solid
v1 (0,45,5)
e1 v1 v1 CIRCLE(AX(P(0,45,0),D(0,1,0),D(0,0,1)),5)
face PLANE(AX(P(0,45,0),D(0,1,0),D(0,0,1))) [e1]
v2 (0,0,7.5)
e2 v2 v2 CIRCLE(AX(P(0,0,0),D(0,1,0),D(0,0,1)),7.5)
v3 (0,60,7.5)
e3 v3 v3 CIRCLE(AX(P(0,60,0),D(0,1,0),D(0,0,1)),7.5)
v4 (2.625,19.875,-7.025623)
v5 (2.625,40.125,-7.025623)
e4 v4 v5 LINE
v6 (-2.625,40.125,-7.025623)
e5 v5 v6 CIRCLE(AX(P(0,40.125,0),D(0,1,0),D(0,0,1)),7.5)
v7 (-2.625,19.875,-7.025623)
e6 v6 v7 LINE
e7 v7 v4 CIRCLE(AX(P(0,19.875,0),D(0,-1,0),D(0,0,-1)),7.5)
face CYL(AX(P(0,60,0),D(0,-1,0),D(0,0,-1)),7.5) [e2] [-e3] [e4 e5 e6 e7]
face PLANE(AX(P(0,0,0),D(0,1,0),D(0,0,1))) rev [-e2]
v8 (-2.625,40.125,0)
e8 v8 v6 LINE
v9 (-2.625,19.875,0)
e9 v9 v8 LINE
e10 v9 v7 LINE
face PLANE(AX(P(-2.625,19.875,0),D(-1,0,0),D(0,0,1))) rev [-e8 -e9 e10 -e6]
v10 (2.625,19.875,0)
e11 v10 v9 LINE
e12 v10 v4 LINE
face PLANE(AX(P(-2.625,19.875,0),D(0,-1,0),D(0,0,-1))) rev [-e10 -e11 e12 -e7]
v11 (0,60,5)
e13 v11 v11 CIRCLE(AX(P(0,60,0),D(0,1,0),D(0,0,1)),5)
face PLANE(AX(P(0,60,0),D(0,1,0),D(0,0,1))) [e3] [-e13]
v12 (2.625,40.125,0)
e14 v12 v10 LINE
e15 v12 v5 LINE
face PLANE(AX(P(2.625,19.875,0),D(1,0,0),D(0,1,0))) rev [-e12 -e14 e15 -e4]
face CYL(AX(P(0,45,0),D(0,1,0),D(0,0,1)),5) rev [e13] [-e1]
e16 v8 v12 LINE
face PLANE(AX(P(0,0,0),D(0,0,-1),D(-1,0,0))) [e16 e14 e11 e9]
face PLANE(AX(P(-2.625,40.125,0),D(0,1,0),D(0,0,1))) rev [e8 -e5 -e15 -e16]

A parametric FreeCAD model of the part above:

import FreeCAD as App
import Part
import Sketcher

V = App.Vector
Q = App.Units.Quantity


def add_polygon(sketch, points):
    """Adds a closed chain of lines whose ends are joined by coincident constraints."""
    first, n = sketch.GeometryCount, len(points)
    for a, b in zip(points, points[1:] + points[:1]):
        sketch.addGeometry(Part.LineSegment(App.Vector(*a, 0), App.Vector(*b, 0)), False)
    for i in range(n):
        sketch.addConstraint(Sketcher.Constraint("Coincident", first + i, 2, first + (i + 1) % n, 1))

doc = App.newDocument("Part")
params = doc.addObject("Spreadsheet::Sheet", "Params")
for row, (alias, value) in enumerate([
    ("sketch1_diameter", "15 mm"),
    ("pad1_length", "60 mm"),
    ("sketch2_diameter", "10 mm"),
    ("pocket1_length", "15 mm"),
    ("sketch3_width", "5.25 mm"),
    ("sketch3_height", "20.25 mm"),
    ("pocket2_length", "7.5 mm"),
], start=1):
    params.set(f"A{row}", alias)
    params.set(f"B{row}", "=" + value)
    params.setAlias(f"B{row}", alias)

body = doc.addObject("PartDesign::Body", "Body")

# Sketch on XZ plane
sketch1 = doc.addObject("Sketcher::SketchObject", "Sketch")
body.addObject(sketch1)
sketch1.AttachmentSupport = (doc.XZ_Plane, [""])
sketch1.MapMode = "FlatFace"
sketch1.addGeometry(Part.Circle(V(0, 0, 0), V(0, 0, 1), 8), False)
sketch1.addConstraint([
    Sketcher.Constraint("Coincident", 0, 3, -1, 1),
    Sketcher.Constraint("Diameter", 0, Q("15 mm")),
])
sketch1.setExpression("Constraints[1]", "Params.sketch1_diameter")
pad1 = doc.addObject("PartDesign::Pad", "Pad")
body.addObject(pad1)
pad1.Profile = sketch1
pad1.setExpression("Length", "Params.pad1_length")
pad1.Reversed = True

# Sketch on XZ plane
sketch2 = doc.addObject("Sketcher::SketchObject", "Sketch001")
body.addObject(sketch2)
sketch2.AttachmentSupport = (doc.XZ_Plane, [""])
sketch2.MapMode = "FlatFace"
sketch2.AttachmentOffset = App.Placement(V(0, 0, -60), App.Rotation())
sketch2.addGeometry(Part.Circle(V(0, 0, 0), V(0, 0, 1), 5), False)
sketch2.addConstraint([
    Sketcher.Constraint("Coincident", 0, 3, -1, 1),
    Sketcher.Constraint("Diameter", 0, Q("10 mm")),
])
sketch2.setExpression("Constraints[1]", "Params.sketch2_diameter")
pocket1 = doc.addObject("PartDesign::Pocket", "Pocket")
body.addObject(pocket1)
pocket1.Profile = sketch2
pocket1.setExpression("Length", "Params.pocket1_length")
pocket1.Reversed = True

# Sketch on XY plane
sketch3 = doc.addObject("Sketcher::SketchObject", "Sketch002")
body.addObject(sketch3)
sketch3.AttachmentSupport = (doc.XY_Plane, [""])
sketch3.MapMode = "FlatFace"
sketch3.AttachmentOffset = App.Placement(V(0, 0, -7.5), App.Rotation())
add_polygon(sketch3, [(3, 40), (3, 20), (-3, 20), (-3, 40)])  # lines 0-3
sketch3.addConstraint([
    Sketcher.Constraint("Vertical", 0),
    Sketcher.Constraint("Horizontal", 1),
    Sketcher.Constraint("Vertical", 2),
    Sketcher.Constraint("Horizontal", 3),
    Sketcher.Constraint("DistanceX", 1, 2, 1, 1, Q("5.25 mm")),
    Sketcher.Constraint("DistanceY", 0, 2, 0, 1, Q("20.25 mm")),
    Sketcher.Constraint("DistanceX", -1, 1, 0, 2, Q("2.625 mm")),
    Sketcher.Constraint("DistanceY", -1, 1, 0, 2, Q("19.875 mm")),
])
sketch3.setExpression("Constraints[8]", "Params.sketch3_width")
sketch3.setExpression("Constraints[9]", "Params.sketch3_height")
pocket2 = doc.addObject("PartDesign::Pocket", "Pocket001")
body.addObject(pocket2)
pocket2.Profile = sketch3
pocket2.setExpression("Length", "Params.pocket2_length")
pocket2.Reversed = True

doc.recompute()
